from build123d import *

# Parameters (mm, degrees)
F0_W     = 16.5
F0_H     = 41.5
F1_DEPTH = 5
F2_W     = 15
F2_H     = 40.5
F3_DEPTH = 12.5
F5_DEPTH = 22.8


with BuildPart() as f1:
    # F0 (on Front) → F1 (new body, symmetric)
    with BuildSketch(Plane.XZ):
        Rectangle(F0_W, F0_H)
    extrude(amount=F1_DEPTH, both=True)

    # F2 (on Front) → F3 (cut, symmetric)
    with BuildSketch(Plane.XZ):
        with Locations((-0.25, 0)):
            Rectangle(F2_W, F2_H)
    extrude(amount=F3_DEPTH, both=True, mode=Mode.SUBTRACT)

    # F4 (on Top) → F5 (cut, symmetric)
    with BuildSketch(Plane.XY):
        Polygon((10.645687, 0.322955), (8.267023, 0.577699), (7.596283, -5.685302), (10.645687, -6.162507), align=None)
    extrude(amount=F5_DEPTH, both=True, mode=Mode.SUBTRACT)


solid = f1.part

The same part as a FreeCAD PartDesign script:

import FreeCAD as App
import Part
import Sketcher
from FreeCAD import Vector
Q = App.Units.Quantity


def add_polygon(sketch, points):
    """Adds a closed chain of lines whose ends are joined by coincident constraints."""
    first, n = sketch.GeometryCount, len(points)
    for a, b in zip(points, points[1:] + points[:1]):
        sketch.addGeometry(Part.LineSegment(App.Vector(*a, 0), App.Vector(*b, 0)), False)
    for i in range(n):
        sketch.addConstraint(Sketcher.Constraint("Coincident", first + i, 2, first + (i + 1) % n, 1))

doc = App.newDocument("Part")
body = doc.addObject("PartDesign::Body", "Body")

# Sketch on XZ plane
sketch1 = body.newObject("Sketcher::SketchObject", "Sketch")
sketch1.AttachmentSupport = (doc.getObject("XZ_Plane"), [""])
sketch1.MapMode = "FlatFace"
add_polygon(sketch1, [(-8, 21), (-8, -21), (8, -21), (8, 21)])  # lines 0-3
sketch1.addConstraint([
    Sketcher.Constraint("Vertical", 0),
    Sketcher.Constraint("Horizontal", 1),
    Sketcher.Constraint("Vertical", 2),
    Sketcher.Constraint("Horizontal", 3),
    Sketcher.Constraint("Symmetric", 0, 2, 2, 2, -1, 1),
    Sketcher.Constraint("DistanceX", 1, 1, 1, 2, Q("16.5 mm")),
    Sketcher.Constraint("DistanceY", 0, 2, 0, 1, Q("41.5 mm")),
])
pad1 = body.newObject("PartDesign::Pad", "Pad")
pad1.Profile = sketch1
pad1.Length = 10
pad1.Midplane = True

# Sketch on XZ plane
sketch2 = body.newObject("Sketcher::SketchObject", "Sketch001")
sketch2.AttachmentSupport = (doc.getObject("XZ_Plane"), [""])
sketch2.MapMode = "FlatFace"
add_polygon(sketch2, [(-8, 20), (-8, -20), (7, -20), (7, 20)])  # lines 0-3
sketch2.addConstraint([
    Sketcher.Constraint("Vertical", 0),
    Sketcher.Constraint("Horizontal", 1),
    Sketcher.Constraint("Vertical", 2),
    Sketcher.Constraint("Horizontal", 3),
    Sketcher.Constraint("DistanceX", 1, 1, 1, 2, Q("15 mm")),
    Sketcher.Constraint("DistanceY", 0, 2, 0, 1, Q("40.5 mm")),
    Sketcher.Constraint("DistanceX", 0, 2, -1, 1, Q("7.75 mm")),
    Sketcher.Constraint("DistanceY", 0, 2, -1, 1, Q("20.25 mm")),
])
pocket1 = body.newObject("PartDesign::Pocket", "Pocket")
pocket1.Profile = sketch2
pocket1.Length = 25
pocket1.Midplane = True

# Sketch on XY plane
sketch3 = body.newObject("Sketcher::SketchObject", "Sketch002")
sketch3.AttachmentSupport = (doc.getObject("XY_Plane"), [""])
sketch3.MapMode = "FlatFace"
add_polygon(sketch3, [(10.6, 0.3), (8.3, 0.6), (7.6, -5.7), (10.6, -6.2)])  # lines 0-3
sketch3.addConstraint([
    Sketcher.Constraint("Vertical", 3),
    Sketcher.Constraint("Perpendicular", 0, 1),
    Sketcher.Constraint("DistanceY", 1, 2, 0, 2, Q("6.263001 mm")),
    Sketcher.Constraint("DistanceY", -1, 1, 0, 2, Q("0.577699 mm")),
    Sketcher.Constraint("DistanceY", 3, 1, 3, 2, Q("6.485462 mm")),
    Sketcher.Constraint("DistanceX", 1, 2, 0, 2, Q("0.67074 mm")),
    Sketcher.Constraint("Distance", 0, Q("2.392266 mm")),
    Sketcher.Constraint("DistanceX", -1, 1, 0, 2, Q("8.267023 mm")),
])
pocket2 = body.newObject("PartDesign::Pocket", "Pocket001")
pocket2.Profile = sketch3
pocket2.Length = 45.6
pocket2.Midplane = True

doc.recompute()
